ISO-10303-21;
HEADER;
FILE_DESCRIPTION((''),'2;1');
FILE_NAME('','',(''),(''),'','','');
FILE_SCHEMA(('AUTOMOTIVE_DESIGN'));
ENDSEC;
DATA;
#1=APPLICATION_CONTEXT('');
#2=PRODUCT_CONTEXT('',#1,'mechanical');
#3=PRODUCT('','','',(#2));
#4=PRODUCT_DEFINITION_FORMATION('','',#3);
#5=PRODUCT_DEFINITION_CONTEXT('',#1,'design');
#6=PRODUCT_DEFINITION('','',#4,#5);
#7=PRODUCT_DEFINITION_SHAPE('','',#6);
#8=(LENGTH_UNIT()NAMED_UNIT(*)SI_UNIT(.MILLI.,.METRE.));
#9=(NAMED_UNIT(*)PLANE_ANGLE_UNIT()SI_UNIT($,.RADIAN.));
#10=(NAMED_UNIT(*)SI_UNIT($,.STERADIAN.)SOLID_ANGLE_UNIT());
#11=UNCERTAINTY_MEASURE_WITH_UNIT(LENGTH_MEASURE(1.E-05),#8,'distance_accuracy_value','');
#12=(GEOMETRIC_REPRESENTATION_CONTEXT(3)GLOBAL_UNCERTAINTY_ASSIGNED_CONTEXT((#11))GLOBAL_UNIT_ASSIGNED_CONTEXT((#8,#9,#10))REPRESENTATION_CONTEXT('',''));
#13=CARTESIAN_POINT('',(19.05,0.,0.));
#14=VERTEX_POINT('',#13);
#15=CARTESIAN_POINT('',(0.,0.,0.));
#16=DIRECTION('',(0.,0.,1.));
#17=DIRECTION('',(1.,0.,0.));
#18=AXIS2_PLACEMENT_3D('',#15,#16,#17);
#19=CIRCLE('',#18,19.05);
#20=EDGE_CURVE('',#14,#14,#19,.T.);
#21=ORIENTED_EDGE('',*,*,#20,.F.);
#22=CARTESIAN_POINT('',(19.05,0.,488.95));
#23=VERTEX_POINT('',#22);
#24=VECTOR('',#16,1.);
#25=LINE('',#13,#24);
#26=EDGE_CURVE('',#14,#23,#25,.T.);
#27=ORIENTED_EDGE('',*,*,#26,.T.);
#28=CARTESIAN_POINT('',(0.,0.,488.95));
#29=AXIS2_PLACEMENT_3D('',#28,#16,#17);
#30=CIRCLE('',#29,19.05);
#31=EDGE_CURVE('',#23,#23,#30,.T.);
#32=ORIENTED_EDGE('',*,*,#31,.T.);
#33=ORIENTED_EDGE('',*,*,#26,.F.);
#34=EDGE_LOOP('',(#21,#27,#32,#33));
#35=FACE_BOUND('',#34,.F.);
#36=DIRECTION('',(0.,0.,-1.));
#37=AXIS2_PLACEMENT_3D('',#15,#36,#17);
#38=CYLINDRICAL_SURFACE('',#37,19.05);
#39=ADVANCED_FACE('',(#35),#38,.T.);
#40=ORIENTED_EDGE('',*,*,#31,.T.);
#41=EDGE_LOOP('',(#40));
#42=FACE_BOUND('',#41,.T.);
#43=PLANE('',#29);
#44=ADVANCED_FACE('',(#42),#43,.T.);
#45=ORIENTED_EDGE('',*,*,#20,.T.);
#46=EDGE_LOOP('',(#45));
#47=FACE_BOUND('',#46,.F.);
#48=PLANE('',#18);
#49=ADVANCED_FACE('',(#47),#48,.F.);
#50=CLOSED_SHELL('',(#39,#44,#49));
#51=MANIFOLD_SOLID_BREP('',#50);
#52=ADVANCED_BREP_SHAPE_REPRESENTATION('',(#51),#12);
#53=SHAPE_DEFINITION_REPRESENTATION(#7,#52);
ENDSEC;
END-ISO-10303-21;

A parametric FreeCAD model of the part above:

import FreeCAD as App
import Part
import Sketcher
from FreeCAD import Vector
Q = App.Units.Quantity

doc = App.newDocument("Part")
body = doc.addObject("PartDesign::Body", "Body")

# Sketch on XY plane
sketch1 = body.newObject("Sketcher::SketchObject", "Sketch")
sketch1.AttachmentSupport = (doc.getObject("XY_Plane"), [""])
sketch1.MapMode = "FlatFace"
sketch1.addGeometry(Part.Circle(Vector(0, 0, 0), Vector(0, 0, 1), 19), False)
sketch1.addConstraint([
    Sketcher.Constraint("Coincident", 0, 3, -1, 1),
    Sketcher.Constraint("Diameter", 0, Q("1.5 in")),
])
pad1 = body.newObject("PartDesign::Pad", "Pad")
pad1.Profile = sketch1
pad1.Length = Q("19.25 in")

doc.recompute()
